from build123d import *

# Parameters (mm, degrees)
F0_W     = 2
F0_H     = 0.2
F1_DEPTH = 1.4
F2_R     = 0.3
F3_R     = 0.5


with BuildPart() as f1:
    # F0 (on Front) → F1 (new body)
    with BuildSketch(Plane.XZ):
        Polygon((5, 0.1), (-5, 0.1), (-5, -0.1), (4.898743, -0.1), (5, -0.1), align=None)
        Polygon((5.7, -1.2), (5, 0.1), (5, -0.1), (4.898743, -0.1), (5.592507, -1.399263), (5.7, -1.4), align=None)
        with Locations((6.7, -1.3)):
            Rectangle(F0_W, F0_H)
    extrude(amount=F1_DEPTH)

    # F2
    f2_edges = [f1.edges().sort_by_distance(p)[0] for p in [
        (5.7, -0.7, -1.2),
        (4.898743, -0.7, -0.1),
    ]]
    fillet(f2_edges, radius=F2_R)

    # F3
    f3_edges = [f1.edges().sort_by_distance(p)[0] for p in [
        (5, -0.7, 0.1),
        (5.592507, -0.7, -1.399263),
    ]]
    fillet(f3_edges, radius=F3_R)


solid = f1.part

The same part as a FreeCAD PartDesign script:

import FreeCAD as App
import Part
import Sketcher

V = App.Vector
Q = App.Units.Quantity


def edges_at(feature, points):
    """Names of the edges that pass closest to the given points."""
    edges = feature.Shape.Edges
    near = lambda p: min(range(len(edges)), key=lambda i: edges[i].distToShape(Part.Vertex(*p))[0])
    return sorted({f"Edge{near(p) + 1}" for p in points})


def add_polygon(sketch, points):
    """Adds a closed chain of lines whose ends are joined by coincident constraints."""
    first, n = sketch.GeometryCount, len(points)
    for a, b in zip(points, points[1:] + points[:1]):
        sketch.addGeometry(Part.LineSegment(App.Vector(*a, 0), App.Vector(*b, 0)), False)
    for i in range(n):
        sketch.addConstraint(Sketcher.Constraint("Coincident", first + i, 2, first + (i + 1) % n, 1))

doc = App.newDocument("Part")
body = doc.addObject("PartDesign::Body", "Body")

sketch1 = body.newObject("Sketcher::SketchObject", "Sketch")
sketch1.AttachmentSupport = (doc.getObject("XZ_Plane"), [""])
sketch1.MapMode = "FlatFace"
add_polygon(sketch1, [(5, 0.1), (-5, 0.1), (-5, -0.1), (4.9, -0.1), (5.59, -1.4), (5.7, -1.4), (7.7, -1.4), (7.7, -1.2), (5.7, -1.2)])
sketch1.addConstraint([
    Sketcher.Constraint("Horizontal", 0),
    Sketcher.Constraint("Vertical", 1),
    Sketcher.Constraint("Horizontal", 2),
    Sketcher.Constraint("Horizontal", 5),
    Sketcher.Constraint("Vertical", 6),
    Sketcher.Constraint("Horizontal", 7),
    Sketcher.Constraint("Symmetric", 1, 2, 8, 2, -1, 1),
    Sketcher.Constraint("Vertical", 4, 2, 7, 2),
    Sketcher.Constraint("Equal", 1, 6),
    Sketcher.Constraint("DistanceX", 0, 2, 0, 1, Q("10 mm")),
    Sketcher.Constraint("DistanceX", 5, 1, 5, 2, Q("2 mm")),
    Sketcher.Constraint("DistanceY", 1, 2, 1, 1, Q("0.2 mm")),
    Sketcher.Constraint("DistanceX", -1, 1, 4, 2, Q("5.7 mm")),
    Sketcher.Constraint("DistanceY", 4, 2, -1, 1, Q("1.4 mm")),
    Sketcher.Constraint("DistanceX", 2, 1, 2, 2, Q("9.898743 mm")),
    Sketcher.Constraint("Distance", 3, Q("1.472886 mm")),
    Sketcher.Constraint("Distance", 4, Q("0.107496 mm")),
])
pad1 = body.newObject("PartDesign::Pad", "Pad")
pad1.Profile = sketch1
pad1.Length = 1.4
doc.recompute()

fillet = body.newObject("PartDesign::Fillet", "Fillet")
fillet.Base = (pad1, edges_at(pad1, [(5.7, -0.7, -1.2), (4.899, -0.7, -0.1)]))
fillet.Radius = 0.3
doc.recompute()

fillet2 = body.newObject("PartDesign::Fillet", "Fillet001")
fillet2.Base = (fillet, edges_at(fillet, [(5, -0.7, 0.1), (5.593, -0.7, -1.399)]))
fillet2.Radius = 0.5

doc.recompute()
